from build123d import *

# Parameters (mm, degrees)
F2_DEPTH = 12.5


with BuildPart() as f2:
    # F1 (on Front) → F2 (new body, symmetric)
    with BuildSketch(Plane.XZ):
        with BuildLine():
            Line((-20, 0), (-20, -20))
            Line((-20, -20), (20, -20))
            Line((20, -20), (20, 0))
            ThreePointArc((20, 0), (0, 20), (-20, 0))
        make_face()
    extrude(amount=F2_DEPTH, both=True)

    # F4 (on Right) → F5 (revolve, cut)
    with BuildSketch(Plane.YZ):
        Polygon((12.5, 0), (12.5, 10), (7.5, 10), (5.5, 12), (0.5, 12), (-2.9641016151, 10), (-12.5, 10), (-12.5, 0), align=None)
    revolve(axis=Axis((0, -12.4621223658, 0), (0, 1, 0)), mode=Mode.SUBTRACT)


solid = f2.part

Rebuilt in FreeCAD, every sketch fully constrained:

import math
import FreeCAD as App
import Part
import Sketcher

V = App.Vector
Q = App.Units.Quantity

doc = App.newDocument("Part")
params = doc.addObject("Spreadsheet::Sheet", "Params")
for row, (alias, value) in enumerate([
    ("sketch1_radius", "20 mm"),
    ("sketch1_height", "20 mm"),
    ("pad1_length", "25 mm"),
    ("sketch2_width", "5 mm"),
    ("sketch2_width2", "25 mm"),
    ("sketch2_height", "10 mm"),
    ("sketch2_length", "4 mm"),
    ("groove_angle", "360 deg"),
], start=1):
    params.set(f"A{row}", alias)
    params.set(f"B{row}", "=" + value)
    params.setAlias(f"B{row}", alias)

body = doc.addObject("PartDesign::Body", "Body")

sketch1 = body.newObject("Sketcher::SketchObject", "Sketch")
sketch1.AttachmentSupport = (doc.getObject("XZ_Plane"), [""])
sketch1.MapMode = "FlatFace"
sketch1.addGeometry([
    Part.LineSegment(V(-20, 0, 0), V(-20, -20, 0)),
    Part.LineSegment(V(-20, -20, 0), V(20, -20, 0)),
    Part.LineSegment(V(20, -20, 0), V(20, 0, 0)),
    Part.ArcOfCircle(Part.Circle(V(0, 0, 0), V(0, 0, 1), 20), math.radians(0), math.radians(180)),
], False)
sketch1.addConstraint([
    Sketcher.Constraint("Coincident", 0, 2, 1, 1),
    Sketcher.Constraint("Coincident", 1, 2, 2, 1),
    Sketcher.Constraint("Tangent", 2, 2, 3, 1),
    Sketcher.Constraint("Tangent", 3, 2, 0, 1),
    Sketcher.Constraint("Vertical", 0),
    Sketcher.Constraint("Horizontal", 1),
    Sketcher.Constraint("Vertical", 2),
    Sketcher.Constraint("Coincident", 3, 3, -1, 1),
    Sketcher.Constraint("Radius", 3, Q("20 mm")),
    Sketcher.Constraint("DistanceY", 0, 2, 0, 1, Q("20 mm")),
])
sketch1.setExpression("Constraints[8]", "Params.sketch1_radius")
sketch1.setExpression("Constraints[9]", "Params.sketch1_height")
pad1 = body.newObject("PartDesign::Pad", "Pad")
pad1.Profile = sketch1
pad1.setExpression("Length", "Params.pad1_length")
pad1.Midplane = True

sketch2 = body.newObject("Sketcher::SketchObject", "Sketch001")
sketch2.AttachmentSupport = (doc.getObject("YZ_Plane"), [""])
sketch2.MapMode = "FlatFace"
sketch2.addGeometry([
    Part.LineSegment(V(12.5, 0, 0), V(12.5, 10, 0)),
    Part.LineSegment(V(12.5, 10, 0), V(7.5, 10, 0)),
    Part.LineSegment(V(7.5, 10, 0), V(5.5, 12, 0)),
    Part.LineSegment(V(5.5, 12, 0), V(0.5, 12, 0)),
    Part.LineSegment(V(0.5, 12, 0), V(-3, 10, 0)),
    Part.LineSegment(V(-3, 10, 0), V(-12.5, 10, 0)),
    Part.LineSegment(V(-12.5, 10, 0), V(-12.5, 0, 0)),
    Part.LineSegment(V(-12.5, 0, 0), V(12.5, 0, 0)),
], False)
sketch2.addConstraint([
    Sketcher.Constraint("Coincident", 0, 2, 1, 1),
    Sketcher.Constraint("Coincident", 1, 2, 2, 1),
    Sketcher.Constraint("Coincident", 2, 2, 3, 1),
    Sketcher.Constraint("Coincident", 3, 2, 4, 1),
    Sketcher.Constraint("Coincident", 4, 2, 5, 1),
    Sketcher.Constraint("Coincident", 5, 2, 6, 1),
    Sketcher.Constraint("Coincident", 6, 2, 7, 1),
    Sketcher.Constraint("Coincident", 7, 2, 0, 1),
    Sketcher.Constraint("Vertical", 0),
    Sketcher.Constraint("Horizontal", 1),
    Sketcher.Constraint("Horizontal", 3),
    Sketcher.Constraint("Horizontal", 5),
    Sketcher.Constraint("Vertical", 6),
    Sketcher.Constraint("Horizontal", 7),
    Sketcher.Constraint("Symmetric", 6, 2, 7, 2, -1, 1),
    Sketcher.Constraint("Horizontal", 1, 2, 4, 2),
    Sketcher.Constraint("Equal", 1, 3),
    Sketcher.Constraint("DistanceX", 1, 2, 1, 1, Q("5 mm")),
    Sketcher.Constraint("DistanceX", 7, 1, 7, 2, Q("25 mm")),
    Sketcher.Constraint("DistanceY", 0, 1, 0, 2, Q("10 mm")),
    Sketcher.Constraint("Angle", 2, Q("135 deg")),
    Sketcher.Constraint("Angle", 4, Q("-150 deg")),
    Sketcher.Constraint("Distance", 4, Q("4 mm")),
])
sketch2.setExpression("Constraints[17]", "Params.sketch2_width")
sketch2.setExpression("Constraints[18]", "Params.sketch2_width2")
sketch2.setExpression("Constraints[19]", "Params.sketch2_height")
sketch2.setExpression("Constraints[22]", "Params.sketch2_length")
groove = body.newObject("PartDesign::Groove", "Groove")
groove.Profile = sketch2
groove.ReferenceAxis = (sketch2, ["H_Axis"])
groove.setExpression("Angle", "Params.groove_angle")

doc.recompute()
